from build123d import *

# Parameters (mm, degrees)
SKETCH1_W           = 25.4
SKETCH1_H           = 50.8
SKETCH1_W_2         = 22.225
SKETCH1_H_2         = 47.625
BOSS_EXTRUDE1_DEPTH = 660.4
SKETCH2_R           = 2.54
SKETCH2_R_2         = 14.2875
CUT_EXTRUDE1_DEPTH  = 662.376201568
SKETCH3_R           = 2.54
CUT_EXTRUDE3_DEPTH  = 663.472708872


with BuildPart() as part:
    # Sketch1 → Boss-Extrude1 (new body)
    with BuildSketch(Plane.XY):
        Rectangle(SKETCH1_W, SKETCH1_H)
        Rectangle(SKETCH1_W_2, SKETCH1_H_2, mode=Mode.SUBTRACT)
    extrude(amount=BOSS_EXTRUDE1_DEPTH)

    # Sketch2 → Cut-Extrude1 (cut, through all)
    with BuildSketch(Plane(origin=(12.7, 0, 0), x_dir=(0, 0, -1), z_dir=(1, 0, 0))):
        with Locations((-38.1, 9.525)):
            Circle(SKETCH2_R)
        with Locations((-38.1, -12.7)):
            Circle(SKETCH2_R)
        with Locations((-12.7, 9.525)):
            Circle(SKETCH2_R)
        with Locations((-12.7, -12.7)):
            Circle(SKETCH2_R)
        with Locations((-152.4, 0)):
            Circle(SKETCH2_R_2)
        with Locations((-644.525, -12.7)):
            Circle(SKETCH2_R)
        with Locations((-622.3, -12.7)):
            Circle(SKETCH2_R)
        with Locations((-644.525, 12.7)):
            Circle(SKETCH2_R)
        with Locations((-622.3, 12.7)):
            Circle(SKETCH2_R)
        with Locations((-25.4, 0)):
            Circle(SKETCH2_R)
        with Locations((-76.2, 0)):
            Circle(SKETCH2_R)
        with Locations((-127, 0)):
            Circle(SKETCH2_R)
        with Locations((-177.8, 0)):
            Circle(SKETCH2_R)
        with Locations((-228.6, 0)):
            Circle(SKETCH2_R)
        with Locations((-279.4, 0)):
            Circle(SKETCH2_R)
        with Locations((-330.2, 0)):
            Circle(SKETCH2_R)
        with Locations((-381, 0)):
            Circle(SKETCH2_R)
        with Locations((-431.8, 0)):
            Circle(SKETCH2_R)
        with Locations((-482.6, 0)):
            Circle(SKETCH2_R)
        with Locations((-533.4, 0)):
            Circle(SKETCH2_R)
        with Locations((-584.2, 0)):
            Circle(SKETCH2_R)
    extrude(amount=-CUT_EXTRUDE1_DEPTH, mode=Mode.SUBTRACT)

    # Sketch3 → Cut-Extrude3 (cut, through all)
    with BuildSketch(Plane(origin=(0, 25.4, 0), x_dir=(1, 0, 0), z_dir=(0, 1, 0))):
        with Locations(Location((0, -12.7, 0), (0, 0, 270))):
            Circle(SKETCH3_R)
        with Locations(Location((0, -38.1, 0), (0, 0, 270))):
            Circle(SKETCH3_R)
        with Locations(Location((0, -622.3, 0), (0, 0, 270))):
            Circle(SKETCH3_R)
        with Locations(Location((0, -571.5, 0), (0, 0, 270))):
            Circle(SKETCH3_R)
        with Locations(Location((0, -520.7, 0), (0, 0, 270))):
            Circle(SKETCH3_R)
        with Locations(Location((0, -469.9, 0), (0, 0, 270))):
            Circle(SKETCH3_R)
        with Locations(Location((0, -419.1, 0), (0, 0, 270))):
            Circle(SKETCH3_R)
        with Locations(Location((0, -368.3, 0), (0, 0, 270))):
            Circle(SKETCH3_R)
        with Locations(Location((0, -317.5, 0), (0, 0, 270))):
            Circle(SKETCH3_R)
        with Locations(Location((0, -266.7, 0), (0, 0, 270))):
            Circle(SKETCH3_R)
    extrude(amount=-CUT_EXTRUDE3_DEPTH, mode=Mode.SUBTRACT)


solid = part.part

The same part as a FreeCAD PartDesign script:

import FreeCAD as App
import Part
import Sketcher
Q = App.Units.Quantity

doc = App.newDocument("Part")
body = doc.addObject("PartDesign::Body", "Body")

sketch1 = body.newObject("Sketcher::SketchObject", "Sketch")
sketch1.AttachmentSupport = (doc.getObject("XY_Plane"), [""])
sketch1.MapMode = "FlatFace"
sketch1.addGeometry([
    Part.LineSegment(App.Vector(-12.7, 25.4, 0), App.Vector(-12.7, -25.4, 0)),
    Part.LineSegment(App.Vector(-12.7, -25.4, 0), App.Vector(12.7, -25.4, 0)),
    Part.LineSegment(App.Vector(12.7, -25.4, 0), App.Vector(12.7, 25.4, 0)),
    Part.LineSegment(App.Vector(12.7, 25.4, 0), App.Vector(-12.7, 25.4, 0)),
    Part.LineSegment(App.Vector(11.1125, -23.8125, 0), App.Vector(-11.1125, -23.8125, 0)),
    Part.LineSegment(App.Vector(-11.1125, -23.8125, 0), App.Vector(-11.1125, 23.8125, 0)),
    Part.LineSegment(App.Vector(-11.1125, 23.8125, 0), App.Vector(11.1125, 23.8125, 0)),
    Part.LineSegment(App.Vector(11.1125, 23.8125, 0), App.Vector(11.1125, -23.8125, 0)),
], False)
sketch1.addConstraint([
    Sketcher.Constraint("Coincident", 0, 2, 1, 1),
    Sketcher.Constraint("Coincident", 1, 2, 2, 1),
    Sketcher.Constraint("Coincident", 2, 2, 3, 1),
    Sketcher.Constraint("Coincident", 3, 2, 0, 1),
    Sketcher.Constraint("Coincident", 4, 2, 5, 1),
    Sketcher.Constraint("Coincident", 5, 2, 6, 1),
    Sketcher.Constraint("Coincident", 6, 2, 7, 1),
    Sketcher.Constraint("Coincident", 7, 2, 4, 1),
    Sketcher.Constraint("Vertical", 0),
    Sketcher.Constraint("Horizontal", 1),
    Sketcher.Constraint("Vertical", 2),
    Sketcher.Constraint("Horizontal", 3),
    Sketcher.Constraint("Horizontal", 4),
    Sketcher.Constraint("Vertical", 5),
    Sketcher.Constraint("Horizontal", 6),
    Sketcher.Constraint("Vertical", 7),
    Sketcher.Constraint("Symmetric", 0, 2, 2, 2, -1, 1),
    Sketcher.Constraint("Symmetric", 4, 2, 6, 2, -1, 1),
    Sketcher.Constraint("DistanceX", 1, 1, 1, 2, Q("1 in")),
    Sketcher.Constraint("DistanceY", 0, 2, 0, 1, Q("2 in")),
    Sketcher.Constraint("DistanceX", 4, 2, 4, 1, Q("0.875 in")),
    Sketcher.Constraint("DistanceY", 5, 1, 5, 2, Q("1.875 in")),
])
pad1 = body.newObject("PartDesign::Pad", "Pad")
pad1.Profile = sketch1
pad1.Length = Q("26 in")

sketch2 = body.newObject("Sketcher::SketchObject", "Sketch001")
sketch2.AttachmentSupport = (doc.getObject("YZ_Plane"), [""])
sketch2.MapMode = "FlatFace"
sketch2.AttachmentOffset = App.Placement(App.Vector(0, 0, 0.5 * 25.4), App.Rotation())
sketch2.addGeometry([
    Part.Circle(App.Vector(9.525, 38.1, 0), App.Vector(0, 0, 1), 2.54),
    Part.Circle(App.Vector(-12.7, 38.1, 0), App.Vector(0, 0, 1), 2.54),
    Part.Circle(App.Vector(9.525, 12.7, 0), App.Vector(0, 0, 1), 2.54),
    Part.Circle(App.Vector(-12.7, 12.7, 0), App.Vector(0, 0, 1), 2.54),
    Part.Circle(App.Vector(0, 152.4, 0), App.Vector(0, 0, 1), 14.2875),
    Part.Circle(App.Vector(-12.7, 644.525, 0), App.Vector(0, 0, 1), 2.54),
    Part.Circle(App.Vector(-12.7, 622.3, 0), App.Vector(0, 0, 1), 2.54),
    Part.Circle(App.Vector(12.7, 644.525, 0), App.Vector(0, 0, 1), 2.54),
    Part.Circle(App.Vector(12.7, 622.3, 0), App.Vector(0, 0, 1), 2.54),
    Part.Circle(App.Vector(0, 25.4, 0), App.Vector(0, 0, 1), 2.54),
    Part.Circle(App.Vector(0, 76.2, 0), App.Vector(0, 0, 1), 2.54),
    Part.Circle(App.Vector(0, 127, 0), App.Vector(0, 0, 1), 2.54),
    Part.Circle(App.Vector(0, 177.8, 0), App.Vector(0, 0, 1), 2.54),
    Part.Circle(App.Vector(0, 228.6, 0), App.Vector(0, 0, 1), 2.54),
    Part.Circle(App.Vector(0, 279.4, 0), App.Vector(0, 0, 1), 2.54),
    Part.Circle(App.Vector(0, 330.2, 0), App.Vector(0, 0, 1), 2.54),
    Part.Circle(App.Vector(0, 381, 0), App.Vector(0, 0, 1), 2.54),
    Part.Circle(App.Vector(0, 431.8, 0), App.Vector(0, 0, 1), 2.54),
    Part.Circle(App.Vector(0, 482.6, 0), App.Vector(0, 0, 1), 2.54),
    Part.Circle(App.Vector(0, 533.4, 0), App.Vector(0, 0, 1), 2.54),
    Part.Circle(App.Vector(0, 584.2, 0), App.Vector(0, 0, 1), 2.54),
], False)
sketch2.addConstraint([
    Sketcher.Constraint("Equal", 0, 1),
    Sketcher.Constraint("Equal", 1, 2),
    Sketcher.Constraint("Equal", 2, 3),
    Sketcher.Constraint("Equal", 3, 5),
    Sketcher.Constraint("Equal", 5, 6),
    Sketcher.Constraint("Equal", 6, 7),
    Sketcher.Constraint("Equal", 7, 8),
    Sketcher.Constraint("Equal", 8, 9),
    Sketcher.Constraint("Equal", 9, 10),
    Sketcher.Constraint("Equal", 10, 11),
    Sketcher.Constraint("Equal", 11, 12),
    Sketcher.Constraint("Equal", 12, 13),
    Sketcher.Constraint("Equal", 13, 14),
    Sketcher.Constraint("Equal", 14, 15),
    Sketcher.Constraint("Equal", 15, 16),
    Sketcher.Constraint("Equal", 16, 17),
    Sketcher.Constraint("Equal", 17, 18),
    Sketcher.Constraint("Equal", 18, 19),
    Sketcher.Constraint("Equal", 19, 20),
    Sketcher.Constraint("Symmetric", 5, 3, 7, 3, -2),
    Sketcher.Constraint("Symmetric", 6, 3, 8, 3, -2),
    Sketcher.Constraint("PointOnObject", 4, 3, -2),
    Sketcher.Constraint("PointOnObject", 9, 3, -2),
    Sketcher.Constraint("PointOnObject", 10, 3, -2),
    Sketcher.Constraint("PointOnObject", 11, 3, -2),
    Sketcher.Constraint("PointOnObject", 12, 3, -2),
    Sketcher.Constraint("PointOnObject", 13, 3, -2),
    Sketcher.Constraint("PointOnObject", 14, 3, -2),
    Sketcher.Constraint("PointOnObject", 15, 3, -2),
    Sketcher.Constraint("PointOnObject", 16, 3, -2),
    Sketcher.Constraint("PointOnObject", 17, 3, -2),
    Sketcher.Constraint("PointOnObject", 18, 3, -2),
    Sketcher.Constraint("PointOnObject", 19, 3, -2),
    Sketcher.Constraint("PointOnObject", 20, 3, -2),
    Sketcher.Constraint("Horizontal", 0, 3, 1, 3),
    Sketcher.Constraint("Horizontal", 2, 3, 3, 3),
    Sketcher.Constraint("Vertical", 0, 3, 2, 3),
    Sketcher.Constraint("Vertical", 1, 3, 3, 3),
    Sketcher.Constraint("Vertical", 3, 3, 5, 3),
    Sketcher.Constraint("Vertical", 5, 3, 6, 3),
    Sketcher.Constraint("Diameter", 0, Q("0.2 in")),
    Sketcher.Constraint("Diameter", 4, Q("1.125 in")),
    Sketcher.Constraint("DistanceY", -1, 1, 4, 3, Q("6 in")),
    Sketcher.Constraint("DistanceY", -1, 1, 9, 3, Q("1 in")),
    Sketcher.Constraint("DistanceY", -1, 1, 10, 3, Q("3 in")),
    Sketcher.Constraint("DistanceY", -1, 1, 11, 3, Q("5 in")),
    Sketcher.Constraint("DistanceY", -1, 1, 12, 3, Q("7 in")),
    Sketcher.Constraint("DistanceY", -1, 1, 13, 3, Q("9 in")),
    Sketcher.Constraint("DistanceY", -1, 1, 14, 3, Q("11 in")),
    Sketcher.Constraint("DistanceY", -1, 1, 15, 3, Q("13 in")),
    Sketcher.Constraint("DistanceY", -1, 1, 16, 3, Q("15 in")),
    Sketcher.Constraint("DistanceY", -1, 1, 17, 3, Q("17 in")),
    Sketcher.Constraint("DistanceY", -1, 1, 18, 3, Q("19 in")),
    Sketcher.Constraint("DistanceY", -1, 1, 19, 3, Q("21 in")),
    Sketcher.Constraint("DistanceY", -1, 1, 20, 3, Q("23 in")),
    Sketcher.Constraint("DistanceY", 2, 3, 0, 3, Q("1 in")),
    Sketcher.Constraint("DistanceY", 1, 3, 6, 3, Q("23 in")),
    Sketcher.Constraint("DistanceX", 5, 3, 7, 3, Q("1 in")),
    Sketcher.Constraint("DistanceY", -1, 1, 0, 3, Q("1.5 in")),
    Sketcher.Constraint("DistanceX", -1, 1, 0, 3, Q("0.375 in")),
    Sketcher.Constraint("DistanceY", -1, 1, 5, 3, Q("25.375 in")),
])
pocket1 = body.newObject("PartDesign::Pocket", "Pocket")
pocket1.Profile = sketch2
pocket1.Type = "ThroughAll"

sketch3 = body.newObject("Sketcher::SketchObject", "Sketch002")
sketch3.AttachmentSupport = (doc.getObject("XZ_Plane"), [""])
sketch3.MapMode = "FlatFace"
sketch3.AttachmentOffset = App.Placement(App.Vector(0, 0, -1 * 25.4), App.Rotation())
sketch3.addGeometry([
    Part.Circle(App.Vector(0, 12.7, 0), App.Vector(0, 0, 1), 2.54),
    Part.Circle(App.Vector(0, 38.1, 0), App.Vector(0, 0, 1), 2.54),
    Part.Circle(App.Vector(0, 622.3, 0), App.Vector(0, 0, 1), 2.54),
    Part.Circle(App.Vector(0, 571.5, 0), App.Vector(0, 0, 1), 2.54),
    Part.Circle(App.Vector(0, 520.7, 0), App.Vector(0, 0, 1), 2.54),
    Part.Circle(App.Vector(0, 469.9, 0), App.Vector(0, 0, 1), 2.54),
    Part.Circle(App.Vector(0, 419.1, 0), App.Vector(0, 0, 1), 2.54),
    Part.Circle(App.Vector(0, 368.3, 0), App.Vector(0, 0, 1), 2.54),
    Part.Circle(App.Vector(0, 317.5, 0), App.Vector(0, 0, 1), 2.54),
    Part.Circle(App.Vector(0, 266.7, 0), App.Vector(0, 0, 1), 2.54),
], False)
sketch3.addConstraint([
    Sketcher.Constraint("Equal", 0, 1),
    Sketcher.Constraint("Equal", 1, 2),
    Sketcher.Constraint("Equal", 2, 3),
    Sketcher.Constraint("Equal", 3, 4),
    Sketcher.Constraint("Equal", 4, 5),
    Sketcher.Constraint("Equal", 5, 6),
    Sketcher.Constraint("Equal", 6, 7),
    Sketcher.Constraint("Equal", 7, 8),
    Sketcher.Constraint("Equal", 8, 9),
    Sketcher.Constraint("PointOnObject", 0, 3, -2),
    Sketcher.Constraint("PointOnObject", 1, 3, -2),
    Sketcher.Constraint("PointOnObject", 2, 3, -2),
    Sketcher.Constraint("PointOnObject", 3, 3, -2),
    Sketcher.Constraint("PointOnObject", 4, 3, -2),
    Sketcher.Constraint("PointOnObject", 5, 3, -2),
    Sketcher.Constraint("PointOnObject", 6, 3, -2),
    Sketcher.Constraint("PointOnObject", 7, 3, -2),
    Sketcher.Constraint("PointOnObject", 8, 3, -2),
    Sketcher.Constraint("PointOnObject", 9, 3, -2),
    Sketcher.Constraint("Diameter", 0, Q("0.2 in")),
    Sketcher.Constraint("DistanceY", 0, 3, 1, 3, Q("1 in")),
    Sketcher.Constraint("DistanceY", 1, 3, 2, 3, Q("23 in")),
    Sketcher.Constraint("DistanceY", 3, 3, 2, 3, Q("2 in")),
    Sketcher.Constraint("DistanceY", 4, 3, 3, 3, Q("2 in")),
    Sketcher.Constraint("DistanceY", 5, 3, 4, 3, Q("2 in")),
    Sketcher.Constraint("DistanceY", 6, 3, 5, 3, Q("2 in")),
    Sketcher.Constraint("DistanceY", 7, 3, 6, 3, Q("2 in")),
    Sketcher.Constraint("DistanceY", 8, 3, 7, 3, Q("2 in")),
    Sketcher.Constraint("DistanceY", 9, 3, 8, 3, Q("2 in")),
    Sketcher.Constraint("DistanceY", -1, 1, 0, 3, Q("0.5 in")),
])
pocket2 = body.newObject("PartDesign::Pocket", "Pocket001")
pocket2.Profile = sketch3
pocket2.Type = "ThroughAll"
pocket2.Reversed = True

doc.recompute()
